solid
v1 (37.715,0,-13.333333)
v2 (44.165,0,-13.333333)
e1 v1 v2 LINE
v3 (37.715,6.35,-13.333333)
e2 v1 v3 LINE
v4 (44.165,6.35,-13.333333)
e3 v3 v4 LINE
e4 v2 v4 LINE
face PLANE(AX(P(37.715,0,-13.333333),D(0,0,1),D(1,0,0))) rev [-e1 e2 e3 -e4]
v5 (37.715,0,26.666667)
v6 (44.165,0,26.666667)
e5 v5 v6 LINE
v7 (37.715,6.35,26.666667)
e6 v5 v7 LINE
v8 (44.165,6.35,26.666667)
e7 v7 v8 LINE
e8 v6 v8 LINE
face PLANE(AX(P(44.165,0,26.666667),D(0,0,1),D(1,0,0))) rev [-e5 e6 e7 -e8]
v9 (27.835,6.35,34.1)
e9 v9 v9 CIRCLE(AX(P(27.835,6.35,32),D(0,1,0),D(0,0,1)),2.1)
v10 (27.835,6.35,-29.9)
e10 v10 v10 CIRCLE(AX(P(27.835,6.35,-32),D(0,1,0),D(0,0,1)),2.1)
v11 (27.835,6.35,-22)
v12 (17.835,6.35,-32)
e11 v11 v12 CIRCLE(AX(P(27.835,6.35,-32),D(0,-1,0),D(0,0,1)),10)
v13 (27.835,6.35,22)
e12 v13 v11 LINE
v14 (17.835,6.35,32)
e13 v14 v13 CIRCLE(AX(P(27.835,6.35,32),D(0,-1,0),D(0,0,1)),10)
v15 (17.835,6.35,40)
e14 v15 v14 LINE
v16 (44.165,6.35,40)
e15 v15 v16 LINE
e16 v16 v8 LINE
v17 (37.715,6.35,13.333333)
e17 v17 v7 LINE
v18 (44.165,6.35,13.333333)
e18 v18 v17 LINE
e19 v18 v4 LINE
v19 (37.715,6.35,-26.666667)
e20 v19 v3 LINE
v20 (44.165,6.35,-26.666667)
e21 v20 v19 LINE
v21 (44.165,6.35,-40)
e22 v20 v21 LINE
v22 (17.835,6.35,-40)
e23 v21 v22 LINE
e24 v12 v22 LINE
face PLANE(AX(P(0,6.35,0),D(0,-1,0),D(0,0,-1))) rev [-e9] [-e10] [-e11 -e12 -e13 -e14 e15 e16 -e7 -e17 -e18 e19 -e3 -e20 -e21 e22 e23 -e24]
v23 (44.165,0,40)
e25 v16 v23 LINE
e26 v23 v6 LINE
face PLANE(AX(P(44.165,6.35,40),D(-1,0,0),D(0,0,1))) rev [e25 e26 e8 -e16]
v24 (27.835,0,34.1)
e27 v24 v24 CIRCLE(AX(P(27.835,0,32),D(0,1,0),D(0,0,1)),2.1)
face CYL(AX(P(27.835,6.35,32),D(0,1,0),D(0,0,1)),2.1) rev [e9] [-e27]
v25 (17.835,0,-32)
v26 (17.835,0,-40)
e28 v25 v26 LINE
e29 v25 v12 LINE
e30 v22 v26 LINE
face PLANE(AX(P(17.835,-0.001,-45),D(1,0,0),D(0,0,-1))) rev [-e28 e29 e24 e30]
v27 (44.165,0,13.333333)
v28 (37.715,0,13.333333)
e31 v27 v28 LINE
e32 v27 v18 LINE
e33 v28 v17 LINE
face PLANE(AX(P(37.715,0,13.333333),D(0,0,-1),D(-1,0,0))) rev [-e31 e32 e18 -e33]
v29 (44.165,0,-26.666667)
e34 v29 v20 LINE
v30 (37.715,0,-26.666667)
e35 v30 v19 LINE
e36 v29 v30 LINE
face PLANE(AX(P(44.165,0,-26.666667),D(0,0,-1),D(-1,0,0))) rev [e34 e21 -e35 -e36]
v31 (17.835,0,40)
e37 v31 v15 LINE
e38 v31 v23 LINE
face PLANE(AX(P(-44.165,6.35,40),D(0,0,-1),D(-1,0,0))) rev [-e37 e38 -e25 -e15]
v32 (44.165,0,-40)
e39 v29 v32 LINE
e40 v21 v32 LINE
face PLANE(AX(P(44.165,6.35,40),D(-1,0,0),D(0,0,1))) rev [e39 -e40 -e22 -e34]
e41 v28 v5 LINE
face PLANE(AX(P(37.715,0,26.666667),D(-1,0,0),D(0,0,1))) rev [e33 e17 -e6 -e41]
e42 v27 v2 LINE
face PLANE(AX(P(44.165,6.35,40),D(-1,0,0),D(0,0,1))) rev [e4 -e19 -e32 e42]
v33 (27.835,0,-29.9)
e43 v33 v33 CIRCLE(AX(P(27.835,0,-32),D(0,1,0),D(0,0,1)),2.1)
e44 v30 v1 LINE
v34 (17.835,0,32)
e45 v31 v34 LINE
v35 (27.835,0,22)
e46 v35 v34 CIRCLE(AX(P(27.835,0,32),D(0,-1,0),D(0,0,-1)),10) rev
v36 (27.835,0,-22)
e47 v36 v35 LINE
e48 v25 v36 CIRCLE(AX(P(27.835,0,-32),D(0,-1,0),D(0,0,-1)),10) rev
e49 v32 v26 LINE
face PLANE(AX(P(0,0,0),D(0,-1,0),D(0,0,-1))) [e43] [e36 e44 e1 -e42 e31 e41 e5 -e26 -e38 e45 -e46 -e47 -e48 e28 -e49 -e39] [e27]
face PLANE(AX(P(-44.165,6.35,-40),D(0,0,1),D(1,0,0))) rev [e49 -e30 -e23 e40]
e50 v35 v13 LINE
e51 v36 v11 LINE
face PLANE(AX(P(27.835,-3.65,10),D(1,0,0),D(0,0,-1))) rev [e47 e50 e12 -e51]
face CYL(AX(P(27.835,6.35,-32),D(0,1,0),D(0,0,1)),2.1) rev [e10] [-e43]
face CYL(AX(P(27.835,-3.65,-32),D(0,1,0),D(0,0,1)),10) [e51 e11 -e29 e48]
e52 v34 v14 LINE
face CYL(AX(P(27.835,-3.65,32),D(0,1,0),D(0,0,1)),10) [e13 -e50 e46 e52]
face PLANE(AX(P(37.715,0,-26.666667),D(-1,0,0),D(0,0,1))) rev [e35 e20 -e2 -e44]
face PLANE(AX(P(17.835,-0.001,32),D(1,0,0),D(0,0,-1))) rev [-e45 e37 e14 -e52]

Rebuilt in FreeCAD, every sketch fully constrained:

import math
import FreeCAD as App
import Part
import Sketcher
Q = App.Units.Quantity

doc = App.newDocument("Part")
params = doc.addObject("Spreadsheet::Sheet", "Params")
for row, (alias, value) in enumerate([
    ("sketch1_height", "80 mm"),
    ("sketch1_width", "88.33 mm"),
    ("pad1_length", "6.35 mm"),
    ("sketch2_width", "6.45 mm"),
    ("sketch3_diameter", "4.2 mm"),
    ("hole_diameter", "4.2 mm"),
    ("sketch4_radius", "10 mm"),
    ("sketch4_radius2", "5 mm"),
    ("sketch4_width", "12 mm"),
    ("pocket2_length", "10 mm"),
    ("sketch5_radius", "10 mm"),
    ("sketch5_width", "67 mm"),
    ("sketch5_height", "13 mm"),
    ("sketch5_height2", "90 mm"),
], start=1):
    params.set(f"A{row}", alias)
    params.set(f"B{row}", "=" + value)
    params.setAlias(f"B{row}", alias)

body = doc.addObject("PartDesign::Body", "Body")

# Sketch on XZ plane
sketch1 = doc.addObject("Sketcher::SketchObject", "Sketch")
body.addObject(sketch1)
sketch1.AttachmentSupport = (doc.XZ_Plane, [""])
sketch1.MapMode = "FlatFace"
sketch1.addGeometry(Part.LineSegment(App.Vector(-44, -40, 0), App.Vector(-44, 40, 0)), False)
sketch1.addGeometry(Part.LineSegment(App.Vector(-44, 40, 0), App.Vector(44, 40, 0)), False)
sketch1.addGeometry(Part.LineSegment(App.Vector(44, 40, 0), App.Vector(44, -40, 0)), False)
sketch1.addGeometry(Part.LineSegment(App.Vector(44, -40, 0), App.Vector(-44, -40, 0)), False)
sketch1.addConstraint(Sketcher.Constraint("Coincident", 0, 2, 1, 1))
sketch1.addConstraint(Sketcher.Constraint("Coincident", 1, 2, 2, 1))
sketch1.addConstraint(Sketcher.Constraint("Coincident", 2, 2, 3, 1))
sketch1.addConstraint(Sketcher.Constraint("Coincident", 3, 2, 0, 1))
sketch1.addConstraint(Sketcher.Constraint("Vertical", 0))
sketch1.addConstraint(Sketcher.Constraint("Horizontal", 1))
sketch1.addConstraint(Sketcher.Constraint("Vertical", 2))
sketch1.addConstraint(Sketcher.Constraint("Horizontal", 3))
sketch1.addConstraint(Sketcher.Constraint("Symmetric", 0, 2, 2, 2, -1, 1))
sketch1.addConstraint(Sketcher.Constraint("DistanceY", 0, 1, 0, 2, Q("80 mm")))
sketch1.addConstraint(Sketcher.Constraint("DistanceX", 1, 1, 1, 2, Q("88.33 mm")))
sketch1.setExpression("Constraints[9]", "Params.sketch1_height")
sketch1.setExpression("Constraints[10]", "Params.sketch1_width")
pad1 = doc.addObject("PartDesign::Pad", "Pad")
body.addObject(pad1)
pad1.Profile = sketch1
pad1.setExpression("Length", "Params.pad1_length")
pad1.Reversed = True

# Sketch on XZ plane
sketch2 = doc.addObject("Sketcher::SketchObject", "Sketch001")
body.addObject(sketch2)
sketch2.AttachmentSupport = (doc.XZ_Plane, [""])
sketch2.MapMode = "FlatFace"
sketch2.AttachmentOffset = App.Placement(App.Vector(0, 0, -6.35), App.Rotation())
sketch2.addGeometry(Part.LineSegment(App.Vector(38, 13, 0), App.Vector(38, 27, 0)), False)
sketch2.addGeometry(Part.LineSegment(App.Vector(38, 27, 0), App.Vector(44, 27, 0)), False)
sketch2.addGeometry(Part.LineSegment(App.Vector(44, 27, 0), App.Vector(44, 13, 0)), False)
sketch2.addGeometry(Part.LineSegment(App.Vector(44, 13, 0), App.Vector(38, 13, 0)), False)
sketch2.addGeometry(Part.LineSegment(App.Vector(38, -27, 0), App.Vector(38, -13, 0)), False)
sketch2.addGeometry(Part.LineSegment(App.Vector(38, -13, 0), App.Vector(44, -13, 0)), False)
sketch2.addGeometry(Part.LineSegment(App.Vector(44, -13, 0), App.Vector(44, -27, 0)), False)
sketch2.addGeometry(Part.LineSegment(App.Vector(44, -27, 0), App.Vector(38, -27, 0)), False)
sketch2.addConstraint(Sketcher.Constraint("Coincident", 0, 2, 1, 1))
sketch2.addConstraint(Sketcher.Constraint("Coincident", 1, 2, 2, 1))
sketch2.addConstraint(Sketcher.Constraint("Coincident", 2, 2, 3, 1))
sketch2.addConstraint(Sketcher.Constraint("Coincident", 3, 2, 0, 1))
sketch2.addConstraint(Sketcher.Constraint("Coincident", 4, 2, 5, 1))
sketch2.addConstraint(Sketcher.Constraint("Coincident", 5, 2, 6, 1))
sketch2.addConstraint(Sketcher.Constraint("Coincident", 6, 2, 7, 1))
sketch2.addConstraint(Sketcher.Constraint("Coincident", 7, 2, 4, 1))
sketch2.addConstraint(Sketcher.Constraint("Vertical", 0))
sketch2.addConstraint(Sketcher.Constraint("Horizontal", 1))
sketch2.addConstraint(Sketcher.Constraint("Vertical", 2))
sketch2.addConstraint(Sketcher.Constraint("Horizontal", 3))
sketch2.addConstraint(Sketcher.Constraint("Vertical", 4))
sketch2.addConstraint(Sketcher.Constraint("Horizontal", 5))
sketch2.addConstraint(Sketcher.Constraint("Vertical", 6))
sketch2.addConstraint(Sketcher.Constraint("Horizontal", 7))
sketch2.addConstraint(Sketcher.Constraint("Symmetric", 3, 2, 4, 2, -1))
sketch2.addConstraint(Sketcher.Constraint("Symmetric", 1, 2, 6, 2, -1))
sketch2.addConstraint(Sketcher.Constraint("DistanceY", 4, 2, 0, 2, Q("40 mm")))
sketch2.addConstraint(Sketcher.Constraint("DistanceX", 1, 1, 1, 2, Q("6.45 mm")))
sketch2.addConstraint(Sketcher.Constraint("DistanceX", -1, 1, 0, 2, Q("37.715 mm")))
sketch2.addConstraint(Sketcher.Constraint("DistanceY", 0, 1, 0, 2, Q("13.333333 mm")))
sketch2.setExpression("Constraints[19]", "Params.sketch2_width")
pocket1 = doc.addObject("PartDesign::Pocket", "Pocket")
body.addObject(pocket1)
pocket1.Profile = sketch2
pocket1.Type = "ThroughAll"
pocket1.Reversed = True

# Sketch on XZ plane
sketch3 = doc.addObject("Sketcher::SketchObject", "Sketch002")
body.addObject(sketch3)
sketch3.AttachmentSupport = (doc.XZ_Plane, [""])
sketch3.MapMode = "FlatFace"
sketch3.AttachmentOffset = App.Placement(App.Vector(0, 0, -6.35), App.Rotation())
sketch3.addGeometry(Part.Circle(App.Vector(-36.2, -32, 0), App.Vector(0, 0, 1), 2.1), False)
sketch3.addGeometry(Part.Circle(App.Vector(27.8, -32, 0), App.Vector(0, 0, 1), 2.1), False)
sketch3.addGeometry(Part.Circle(App.Vector(-36.2, 32, 0), App.Vector(0, 0, 1), 2.1), False)
sketch3.addGeometry(Part.Circle(App.Vector(27.8, 32, 0), App.Vector(0, 0, 1), 2.1), False)
sketch3.addConstraint(Sketcher.Constraint("Equal", 0, 1))
sketch3.addConstraint(Sketcher.Constraint("Equal", 1, 2))
sketch3.addConstraint(Sketcher.Constraint("Equal", 2, 3))
sketch3.addConstraint(Sketcher.Constraint("Symmetric", 0, 3, 2, 3, -1))
sketch3.addConstraint(Sketcher.Constraint("Symmetric", 1, 3, 3, 3, -1))
sketch3.addConstraint(Sketcher.Constraint("Horizontal", 0, 3, 1, 3))
sketch3.addConstraint(Sketcher.Constraint("Diameter", 0, Q("4.2 mm")))
sketch3.addConstraint(Sketcher.Constraint("DistanceY", 0, 3, -1, 1, Q("32 mm")))
sketch3.addConstraint(Sketcher.Constraint("DistanceX", 0, 3, 1, 3, Q("64 mm")))
sketch3.addConstraint(Sketcher.Constraint("DistanceX", 0, 3, -1, 1, Q("36.165 mm")))
sketch3.setExpression("Constraints[6]", "Params.sketch3_diameter")
doc.recompute()
hole = doc.addObject("PartDesign::Hole", "Hole")
body.addObject(hole)
hole.Profile = sketch3
hole.ThreadType = "None"
hole.setExpression("Diameter", "Params.hole_diameter")
hole.DepthType = "ThroughAll"
hole.Reversed = True

# Sketch on XZ plane
sketch4 = doc.addObject("Sketcher::SketchObject", "Sketch003")
body.addObject(sketch4)
sketch4.AttachmentSupport = (doc.XZ_Plane, [""])
sketch4.MapMode = "FlatFace"
sketch4.AttachmentOffset = App.Placement(App.Vector(0, 0, -6.35), App.Rotation())
sketch4.addGeometry(Part.LineSegment(App.Vector(-14, -32, 0), App.Vector(-26, -32, 0)), False)
sketch4.addGeometry(Part.ArcOfCircle(Part.Circle(App.Vector(-36, -32, 0), App.Vector(0, 0, 1), 10), math.radians(0), math.radians(90)), False)
sketch4.addGeometry(Part.LineSegment(App.Vector(-36, -22, 0), App.Vector(-36, -10, 0)), False)
sketch4.addGeometry(Part.ArcOfCircle(Part.Circle(App.Vector(-31, -10, 0), App.Vector(0, 0, 1), 5), math.radians(90), math.radians(180)), False)
sketch4.addGeometry(Part.LineSegment(App.Vector(-31, -5, 0), App.Vector(-14, -5, 0)), False)
sketch4.addGeometry(Part.ArcOfCircle(Part.Circle(App.Vector(-14, -10, 0), App.Vector(0, 0, 1), 5), math.radians(0), math.radians(90)), False)
sketch4.addGeometry(Part.LineSegment(App.Vector(-9, -10, 0), App.Vector(-9, -27, 0)), False)
sketch4.addGeometry(Part.ArcOfCircle(Part.Circle(App.Vector(-14, -27, 0), App.Vector(0, 0, 1), 5), math.radians(-90), math.radians(0)), False)
sketch4.addGeometry(Part.LineSegment(App.Vector(-14, 5, 0), App.Vector(-31, 5, 0)), False)
sketch4.addGeometry(Part.ArcOfCircle(Part.Circle(App.Vector(-31, 10, 0), App.Vector(0, 0, 1), 5), math.radians(180), math.radians(270)), False)
sketch4.addGeometry(Part.LineSegment(App.Vector(-36, 10, 0), App.Vector(-36, 22, 0)), False)
sketch4.addGeometry(Part.ArcOfCircle(Part.Circle(App.Vector(-36, 32, 0), App.Vector(0, 0, 1), 10), math.radians(-90), math.radians(0)), False)
sketch4.addGeometry(Part.LineSegment(App.Vector(-26, 32, 0), App.Vector(-14, 32, 0)), False)
sketch4.addGeometry(Part.ArcOfCircle(Part.Circle(App.Vector(-14, 27, 0), App.Vector(0, 0, 1), 5), math.radians(0), math.radians(90)), False)
sketch4.addGeometry(Part.LineSegment(App.Vector(-9, 27, 0), App.Vector(-9, 10, 0)), False)
sketch4.addGeometry(Part.ArcOfCircle(Part.Circle(App.Vector(-14, 10, 0), App.Vector(0, 0, 1), 5), math.radians(-90), math.radians(0)), False)
sketch4.addGeometry(Part.LineSegment(App.Vector(28, -10, 0), App.Vector(28, -22, 0)), False)
sketch4.addGeometry(Part.ArcOfCircle(Part.Circle(App.Vector(28, -32, 0), App.Vector(0, 0, 1), 10), math.radians(90), math.radians(180)), False)
sketch4.addGeometry(Part.LineSegment(App.Vector(18, -32, 0), App.Vector(6, -32, 0)), False)
sketch4.addGeometry(Part.ArcOfCircle(Part.Circle(App.Vector(6, -27, 0), App.Vector(0, 0, 1), 5), math.radians(180), math.radians(270)), False)
sketch4.addGeometry(Part.LineSegment(App.Vector(1, -27, 0), App.Vector(1, -10, 0)), False)
sketch4.addGeometry(Part.ArcOfCircle(Part.Circle(App.Vector(6, -10, 0), App.Vector(0, 0, 1), 5), math.radians(90), math.radians(180)), False)
sketch4.addGeometry(Part.LineSegment(App.Vector(6, -5, 0), App.Vector(23, -5, 0)), False)
sketch4.addGeometry(Part.ArcOfCircle(Part.Circle(App.Vector(23, -10, 0), App.Vector(0, 0, 1), 5), math.radians(0), math.radians(90)), False)
sketch4.addGeometry(Part.LineSegment(App.Vector(6, 32, 0), App.Vector(18, 32, 0)), False)
sketch4.addGeometry(Part.ArcOfCircle(Part.Circle(App.Vector(28, 32, 0), App.Vector(0, 0, 1), 10), math.radians(180), math.radians(270)), False)
sketch4.addGeometry(Part.LineSegment(App.Vector(28, 22, 0), App.Vector(28, 10, 0)), False)
sketch4.addGeometry(Part.ArcOfCircle(Part.Circle(App.Vector(23, 10, 0), App.Vector(0, 0, 1), 5), math.radians(-90), math.radians(0)), False)
sketch4.addGeometry(Part.LineSegment(App.Vector(23, 5, 0), App.Vector(6, 5, 0)), False)
sketch4.addGeometry(Part.ArcOfCircle(Part.Circle(App.Vector(6, 10, 0), App.Vector(0, 0, 1), 5), math.radians(180), math.radians(270)), False)
sketch4.addGeometry(Part.LineSegment(App.Vector(1, 10, 0), App.Vector(1, 27, 0)), False)
sketch4.addGeometry(Part.ArcOfCircle(Part.Circle(App.Vector(6, 27, 0), App.Vector(0, 0, 1), 5), math.radians(90), math.radians(180)), False)
sketch4.addConstraint(Sketcher.Constraint("Coincident", 0, 2, 1, 1))
sketch4.addConstraint(Sketcher.Constraint("Coincident", 1, 2, 2, 1))
sketch4.addConstraint(Sketcher.Constraint("Tangent", 2, 2, 3, 2))
sketch4.addConstraint(Sketcher.Constraint("Tangent", 3, 1, 4, 1))
sketch4.addConstraint(Sketcher.Constraint("Tangent", 4, 2, 5, 2))
sketch4.addConstraint(Sketcher.Constraint("Tangent", 5, 1, 6, 1))
sketch4.addConstraint(Sketcher.Constraint("Tangent", 6, 2, 7, 2))
sketch4.addConstraint(Sketcher.Constraint("Tangent", 7, 1, 0, 1))
sketch4.addConstraint(Sketcher.Constraint("Tangent", 8, 2, 9, 2))
sketch4.addConstraint(Sketcher.Constraint("Tangent", 9, 1, 10, 1))
sketch4.addConstraint(Sketcher.Constraint("Coincident", 10, 2, 11, 1))
sketch4.addConstraint(Sketcher.Constraint("Coincident", 11, 2, 12, 1))
sketch4.addConstraint(Sketcher.Constraint("Tangent", 12, 2, 13, 2))
sketch4.addConstraint(Sketcher.Constraint("Tangent", 13, 1, 14, 1))
sketch4.addConstraint(Sketcher.Constraint("Tangent", 14, 2, 15, 2))
sketch4.addConstraint(Sketcher.Constraint("Tangent", 15, 1, 8, 1))
sketch4.addConstraint(Sketcher.Constraint("Coincident", 16, 2, 17, 1))
sketch4.addConstraint(Sketcher.Constraint("Coincident", 17, 2, 18, 1))
sketch4.addConstraint(Sketcher.Constraint("Tangent", 18, 2, 19, 2))
sketch4.addConstraint(Sketcher.Constraint("Tangent", 19, 1, 20, 1))
sketch4.addConstraint(Sketcher.Constraint("Tangent", 20, 2, 21, 2))
sketch4.addConstraint(Sketcher.Constraint("Tangent", 21, 1, 22, 1))
sketch4.addConstraint(Sketcher.Constraint("Tangent", 22, 2, 23, 2))
sketch4.addConstraint(Sketcher.Constraint("Tangent", 23, 1, 16, 1))
sketch4.addConstraint(Sketcher.Constraint("Coincident", 24, 2, 25, 1))
sketch4.addConstraint(Sketcher.Constraint("Coincident", 25, 2, 26, 1))
sketch4.addConstraint(Sketcher.Constraint("Tangent", 26, 2, 27, 2))
sketch4.addConstraint(Sketcher.Constraint("Tangent", 27, 1, 28, 1))
sketch4.addConstraint(Sketcher.Constraint("Tangent", 28, 2, 29, 2))
sketch4.addConstraint(Sketcher.Constraint("Tangent", 29, 1, 30, 1))
sketch4.addConstraint(Sketcher.Constraint("Tangent", 30, 2, 31, 2))
sketch4.addConstraint(Sketcher.Constraint("Tangent", 31, 1, 24, 1))
sketch4.addConstraint(Sketcher.Constraint("Horizontal", 0))
sketch4.addConstraint(Sketcher.Constraint("Vertical", 2))
sketch4.addConstraint(Sketcher.Constraint("Horizontal", 4))
sketch4.addConstraint(Sketcher.Constraint("Vertical", 6))
sketch4.addConstraint(Sketcher.Constraint("Horizontal", 8))
sketch4.addConstraint(Sketcher.Constraint("Vertical", 10))
sketch4.addConstraint(Sketcher.Constraint("Horizontal", 12))
sketch4.addConstraint(Sketcher.Constraint("Vertical", 14))
sketch4.addConstraint(Sketcher.Constraint("Vertical", 16))
sketch4.addConstraint(Sketcher.Constraint("Horizontal", 18))
sketch4.addConstraint(Sketcher.Constraint("Vertical", 20))
sketch4.addConstraint(Sketcher.Constraint("Horizontal", 22))
sketch4.addConstraint(Sketcher.Constraint("Horizontal", 24))
sketch4.addConstraint(Sketcher.Constraint("Vertical", 26))
sketch4.addConstraint(Sketcher.Constraint("Horizontal", 28))
sketch4.addConstraint(Sketcher.Constraint("Vertical", 30))
sketch4.addConstraint(Sketcher.Constraint("Equal", 3, 5))
sketch4.addConstraint(Sketcher.Constraint("Equal", 5, 7))
sketch4.addConstraint(Sketcher.Constraint("Equal", 7, 9))
sketch4.addConstraint(Sketcher.Constraint("Equal", 1, 11))
sketch4.addConstraint(Sketcher.Constraint("Equal", 9, 13))
sketch4.addConstraint(Sketcher.Constraint("Equal", 13, 15))
sketch4.addConstraint(Sketcher.Constraint("Equal", 11, 17))
sketch4.addConstraint(Sketcher.Constraint("Equal", 15, 19))
sketch4.addConstraint(Sketcher.Constraint("Equal", 19, 21))
sketch4.addConstraint(Sketcher.Constraint("Equal", 21, 23))
sketch4.addConstraint(Sketcher.Constraint("Equal", 17, 25))
sketch4.addConstraint(Sketcher.Constraint("Equal", 23, 27))
sketch4.addConstraint(Sketcher.Constraint("Equal", 27, 29))
sketch4.addConstraint(Sketcher.Constraint("Equal", 29, 31))
sketch4.addConstraint(Sketcher.Constraint("Symmetric", 3, 3, 9, 3, -1))
sketch4.addConstraint(Sketcher.Constraint("Symmetric", 1, 3, 11, 3, -1))
sketch4.addConstraint(Sketcher.Constraint("Symmetric", 7, 3, 13, 3, -1))
sketch4.addConstraint(Sketcher.Constraint("Symmetric", 17, 3, 25, 3, -1))
sketch4.addConstraint(Sketcher.Constraint("Symmetric", 23, 3, 27, 3, -1))
sketch4.addConstraint(Sketcher.Constraint("Symmetric", 19, 3, 31, 3, -1))
sketch4.addConstraint(Sketcher.Constraint("Horizontal", 1, 3, 17, 3))
sketch4.addConstraint(Sketcher.Constraint("Horizontal", 7, 3, 19, 3))
sketch4.addConstraint(Sketcher.Constraint("Horizontal", 5, 3, 21, 3))
sketch4.addConstraint(Sketcher.Constraint("Horizontal", 17, 3, 0, 2))
sketch4.addConstraint(Sketcher.Constraint("Vertical", 11, 3, 1, 2))
sketch4.addConstraint(Sketcher.Constraint("Vertical", 25, 3, 16, 2))
sketch4.addConstraint(Sketcher.Constraint("Equal", 12, 18))
sketch4.addConstraint(Sketcher.Constraint("Equal", 24, 2))
sketch4.addConstraint(Sketcher.Constraint("Radius", 1, Q("10 mm")))
sketch4.addConstraint(Sketcher.Constraint("Radius", 3, Q("5 mm")))
sketch4.addConstraint(Sketcher.Constraint("DistanceX", 0, 2, 0, 1, Q("12 mm")))
sketch4.addConstraint(Sketcher.Constraint("DistanceY", 1, 3, -1, 1, Q("32 mm")))
sketch4.addConstraint(Sketcher.Constraint("DistanceX", 7, 3, 17, 3, Q("42 mm")))
sketch4.addConstraint(Sketcher.Constraint("DistanceX", 1, 3, -1, 1, Q("36.165 mm")))
sketch4.setExpression("Constraints[76]", "Params.sketch4_radius")
sketch4.setExpression("Constraints[77]", "Params.sketch4_radius2")
sketch4.setExpression("Constraints[78]", "Params.sketch4_width")
pocket2 = doc.addObject("PartDesign::Pocket", "Pocket001")
body.addObject(pocket2)
pocket2.Profile = sketch4
pocket2.setExpression("Length", "Params.pocket2_length")
pocket2.Reversed = True

# Sketch on XZ plane
sketch5 = doc.addObject("Sketcher::SketchObject", "Sketch004")
body.addObject(sketch5)
sketch5.AttachmentSupport = (doc.XZ_Plane, [""])
sketch5.MapMode = "FlatFace"
sketch5.AttachmentOffset = App.Placement(App.Vector(0, 0, -6.35), App.Rotation())
sketch5.addGeometry(Part.LineSegment(App.Vector(18, -32, 0), App.Vector(18, -45, 0)), False)
sketch5.addGeometry(Part.LineSegment(App.Vector(18, -45, 0), App.Vector(-49, -45, 0)), False)
sketch5.addGeometry(Part.LineSegment(App.Vector(-49, -45, 0), App.Vector(-49, 45, 0)), False)
sketch5.addGeometry(Part.LineSegment(App.Vector(-49, 45, 0), App.Vector(18, 45, 0)), False)
sketch5.addGeometry(Part.LineSegment(App.Vector(18, 45, 0), App.Vector(18, 32, 0)), False)
sketch5.addGeometry(Part.ArcOfCircle(Part.Circle(App.Vector(28, 32, 0), App.Vector(0, 0, 1), 10), math.radians(180), math.radians(270)), False)
sketch5.addGeometry(Part.LineSegment(App.Vector(28, 22, 0), App.Vector(28, -22, 0)), False)
sketch5.addGeometry(Part.ArcOfCircle(Part.Circle(App.Vector(28, -32, 0), App.Vector(0, 0, 1), 10), math.radians(90), math.radians(180)), False)
sketch5.addConstraint(Sketcher.Constraint("Coincident", 0, 2, 1, 1))
sketch5.addConstraint(Sketcher.Constraint("Coincident", 1, 2, 2, 1))
sketch5.addConstraint(Sketcher.Constraint("Coincident", 2, 2, 3, 1))
sketch5.addConstraint(Sketcher.Constraint("Coincident", 3, 2, 4, 1))
sketch5.addConstraint(Sketcher.Constraint("Tangent", 4, 2, 5, 1))
sketch5.addConstraint(Sketcher.Constraint("Coincident", 5, 2, 6, 1))
sketch5.addConstraint(Sketcher.Constraint("Coincident", 6, 2, 7, 1))
sketch5.addConstraint(Sketcher.Constraint("Tangent", 7, 2, 0, 1))
sketch5.addConstraint(Sketcher.Constraint("Vertical", 0))
sketch5.addConstraint(Sketcher.Constraint("Horizontal", 1))
sketch5.addConstraint(Sketcher.Constraint("Vertical", 2))
sketch5.addConstraint(Sketcher.Constraint("Horizontal", 3))
sketch5.addConstraint(Sketcher.Constraint("Vertical", 4))
sketch5.addConstraint(Sketcher.Constraint("Vertical", 6))
sketch5.addConstraint(Sketcher.Constraint("Equal", 5, 7))
sketch5.addConstraint(Sketcher.Constraint("Symmetric", 5, 3, 7, 3, -1))
sketch5.addConstraint(Sketcher.Constraint("Vertical", 7, 3, 5, 2))
sketch5.addConstraint(Sketcher.Constraint("Equal", 0, 4))
sketch5.addConstraint(Sketcher.Constraint("Radius", 5, Q("10 mm")))
sketch5.addConstraint(Sketcher.Constraint("DistanceX", 1, 2, 1, 1, Q("67 mm")))
sketch5.addConstraint(Sketcher.Constraint("DistanceY", 0, 2, 0, 1, Q("13 mm")))
sketch5.addConstraint(Sketcher.Constraint("DistanceY", 2, 1, 2, 2, Q("90 mm")))
sketch5.addConstraint(Sketcher.Constraint("DistanceX", -1, 1, 5, 3, Q("27.835 mm")))
sketch5.setExpression("Constraints[18]", "Params.sketch5_radius")
sketch5.setExpression("Constraints[19]", "Params.sketch5_width")
sketch5.setExpression("Constraints[20]", "Params.sketch5_height")
sketch5.setExpression("Constraints[21]", "Params.sketch5_height2")
pocket3 = doc.addObject("PartDesign::Pocket", "Pocket002")
body.addObject(pocket3)
pocket3.Profile = sketch5
pocket3.Type = "UpToFirst"
pocket3.Reversed = True

doc.recompute()
